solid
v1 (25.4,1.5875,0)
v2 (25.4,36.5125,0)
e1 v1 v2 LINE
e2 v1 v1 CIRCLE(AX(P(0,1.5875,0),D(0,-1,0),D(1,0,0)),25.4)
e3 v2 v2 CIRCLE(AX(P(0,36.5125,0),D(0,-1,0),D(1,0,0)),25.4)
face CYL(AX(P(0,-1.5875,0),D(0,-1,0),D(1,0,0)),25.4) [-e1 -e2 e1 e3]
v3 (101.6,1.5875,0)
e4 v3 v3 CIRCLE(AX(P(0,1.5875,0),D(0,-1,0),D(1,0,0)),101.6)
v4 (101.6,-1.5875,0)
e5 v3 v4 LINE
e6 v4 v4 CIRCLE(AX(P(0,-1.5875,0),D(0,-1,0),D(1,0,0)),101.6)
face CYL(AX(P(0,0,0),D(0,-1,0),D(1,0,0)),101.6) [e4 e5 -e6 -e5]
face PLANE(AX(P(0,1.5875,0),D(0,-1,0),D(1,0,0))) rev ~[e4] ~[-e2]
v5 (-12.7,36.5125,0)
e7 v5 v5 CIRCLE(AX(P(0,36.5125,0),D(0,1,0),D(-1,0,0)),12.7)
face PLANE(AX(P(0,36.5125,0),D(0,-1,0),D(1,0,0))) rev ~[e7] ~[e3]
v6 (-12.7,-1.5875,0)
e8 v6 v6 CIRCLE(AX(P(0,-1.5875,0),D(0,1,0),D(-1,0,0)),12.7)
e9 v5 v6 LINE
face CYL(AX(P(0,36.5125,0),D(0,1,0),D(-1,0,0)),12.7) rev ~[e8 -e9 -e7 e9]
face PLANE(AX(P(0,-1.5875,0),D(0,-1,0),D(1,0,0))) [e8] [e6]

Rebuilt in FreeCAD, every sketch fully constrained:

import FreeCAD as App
import Part
import Sketcher
from FreeCAD import Vector
Q = App.Units.Quantity

doc = App.newDocument("Part")
body = doc.addObject("PartDesign::Body", "Body")

# Sketch on XZ plane
sketch1 = body.newObject("Sketcher::SketchObject", "Sketch")
sketch1.AttachmentSupport = (doc.getObject("XZ_Plane"), [""])
sketch1.MapMode = "FlatFace"
sketch1.addGeometry(Part.Circle(Vector(0, 0, 0), Vector(0, 0, 1), 102), False)
sketch1.addConstraint([
    Sketcher.Constraint("Coincident", 0, 3, -1, 1),
    Sketcher.Constraint("Diameter", 0, Q("8 in")),
])
pad1 = body.newObject("PartDesign::Pad", "Pad")
pad1.Profile = sketch1
pad1.Length = Q("0.125 in")
pad1.Midplane = True

# Sketch on XZ plane
sketch2 = body.newObject("Sketcher::SketchObject", "Sketch001")
sketch2.AttachmentSupport = (doc.getObject("XZ_Plane"), [""])
sketch2.MapMode = "FlatFace"
sketch2.AttachmentOffset = App.Placement(Vector(0, 0, 0.0625 * 25.4), App.Rotation())
sketch2.addGeometry(Part.Circle(Vector(0, 0, 0), Vector(0, 0, 1), 25), False)
sketch2.addConstraint([
    Sketcher.Constraint("Coincident", 0, 3, -1, 1),
    Sketcher.Constraint("Diameter", 0, Q("2 in")),
])
pad2 = body.newObject("PartDesign::Pad", "Pad001")
pad2.Profile = sketch2
pad2.Length = Q("1.5 in")
pad2.Reversed = True

# Sketch on XZ plane
sketch3 = body.newObject("Sketcher::SketchObject", "Sketch002")
sketch3.AttachmentSupport = (doc.getObject("XZ_Plane"), [""])
sketch3.MapMode = "FlatFace"
sketch3.AttachmentOffset = App.Placement(Vector(0, 0, -1.4375 * 25.4), App.Rotation())
sketch3.addGeometry(Part.Circle(Vector(0, 0, 0), Vector(0, 0, 1), 13), False)
sketch3.addConstraint([
    Sketcher.Constraint("Coincident", 0, 3, -1, 1),
    Sketcher.Constraint("Diameter", 0, Q("1 in")),
])
pocket1 = body.newObject("PartDesign::Pocket", "Pocket")
pocket1.Profile = sketch3
pocket1.Length = Q("2.5 in")

# Sketch on XZ plane
sketch4 = body.newObject("Sketcher::SketchObject", "Sketch003")
sketch4.AttachmentSupport = (doc.getObject("XZ_Plane"), [""])
sketch4.MapMode = "FlatFace"
sketch4.AttachmentOffset = App.Placement(Vector(0, 0, -1.4375 * 25.4), App.Rotation())
sketch4.addGeometry(Part.Circle(Vector(0, 0, 0), Vector(0, 0, 1), 13), False)
sketch4.addConstraint([
    Sketcher.Constraint("Coincident", 0, 3, -1, 1),
    Sketcher.Constraint("Diameter", 0, Q("1 in")),
])
pocket2 = body.newObject("PartDesign::Pocket", "Pocket001")
pocket2.Profile = sketch4
pocket2.Length = Q("2.5 in")
pocket2.Reversed = True

doc.recompute()
